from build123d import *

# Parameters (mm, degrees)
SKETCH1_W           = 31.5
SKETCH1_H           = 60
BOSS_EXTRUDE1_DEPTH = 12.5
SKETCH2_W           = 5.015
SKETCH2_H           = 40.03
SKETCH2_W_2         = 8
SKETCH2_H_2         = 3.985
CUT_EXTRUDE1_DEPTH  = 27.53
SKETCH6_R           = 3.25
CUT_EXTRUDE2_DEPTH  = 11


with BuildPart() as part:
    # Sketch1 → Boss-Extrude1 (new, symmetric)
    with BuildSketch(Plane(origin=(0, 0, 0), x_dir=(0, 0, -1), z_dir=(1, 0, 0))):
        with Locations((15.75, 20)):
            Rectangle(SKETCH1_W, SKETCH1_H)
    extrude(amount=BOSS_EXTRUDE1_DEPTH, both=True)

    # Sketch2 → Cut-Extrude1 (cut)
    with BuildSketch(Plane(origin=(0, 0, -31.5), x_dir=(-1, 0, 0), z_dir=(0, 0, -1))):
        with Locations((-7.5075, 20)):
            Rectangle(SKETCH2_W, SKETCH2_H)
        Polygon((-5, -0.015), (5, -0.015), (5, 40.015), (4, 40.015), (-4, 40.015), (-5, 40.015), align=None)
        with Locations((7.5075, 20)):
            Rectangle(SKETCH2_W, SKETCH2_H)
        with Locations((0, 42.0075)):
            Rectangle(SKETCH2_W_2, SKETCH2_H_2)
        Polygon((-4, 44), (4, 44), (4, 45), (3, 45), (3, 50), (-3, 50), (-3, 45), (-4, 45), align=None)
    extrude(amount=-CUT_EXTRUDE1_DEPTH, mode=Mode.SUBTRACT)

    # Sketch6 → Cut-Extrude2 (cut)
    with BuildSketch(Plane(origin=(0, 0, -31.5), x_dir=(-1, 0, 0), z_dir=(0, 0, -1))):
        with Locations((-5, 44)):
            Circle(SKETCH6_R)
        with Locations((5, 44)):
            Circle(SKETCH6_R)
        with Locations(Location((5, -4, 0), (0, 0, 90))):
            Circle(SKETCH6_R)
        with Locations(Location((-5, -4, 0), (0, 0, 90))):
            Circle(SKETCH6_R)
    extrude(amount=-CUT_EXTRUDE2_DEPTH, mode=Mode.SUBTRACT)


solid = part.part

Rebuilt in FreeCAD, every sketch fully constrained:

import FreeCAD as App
import Part
import Sketcher

V = App.Vector

doc = App.newDocument("Part")
params = doc.addObject("Spreadsheet::Sheet", "Params")
for row, (alias, value) in enumerate([
    ("sketch1_width", "60 mm"),
    ("sketch1_height", "31.5 mm"),
    ("pad1_length", "25 mm"),
    ("sketch2_width", "1 mm"),
    ("sketch2_width2", "6 mm"),
    ("sketch2_height", "5 mm"),
    ("sketch2_width3", "20.03 mm"),
    ("sketch2_height2", "40.03 mm"),
    ("pocket1_length", "27.53 mm"),
    ("sketch3_diameter", "6.5 mm"),
    ("pocket2_length", "11 mm"),
], start=1):
    params.set(f"A{row}", alias)
    params.set(f"B{row}", "=" + value)
    params.setAlias(f"B{row}", alias)

body = doc.addObject("PartDesign::Body", "Body")

sketch1 = body.newObject("Sketcher::SketchObject", "Sketch")
sketch1.AttachmentSupport = (doc.getObject("YZ_Plane"), [""])
sketch1.MapMode = "FlatFace"
sketch1.addGeometry([
    Part.LineSegment(V(50, 0, 0), V(-10, 0, 0)),
    Part.LineSegment(V(-10, 0, 0), V(-10, -31.5, 0)),
    Part.LineSegment(V(-10, -31.5, 0), V(50, -31.5, 0)),
    Part.LineSegment(V(50, -31.5, 0), V(50, 0, 0)),
], False)
sketch1.addConstraint([
    Sketcher.Constraint("Coincident", 0, 2, 1, 1),
    Sketcher.Constraint("Coincident", 1, 2, 2, 1),
    Sketcher.Constraint("Coincident", 2, 2, 3, 1),
    Sketcher.Constraint("Coincident", 3, 2, 0, 1),
    Sketcher.Constraint("Horizontal", 0),
    Sketcher.Constraint("Vertical", 1),
    Sketcher.Constraint("Horizontal", 2),
    Sketcher.Constraint("Vertical", 3),
    Sketcher.Constraint("PointOnObject", 0, 2, -1),
    Sketcher.Constraint("DistanceX", 0, 2, 0, 1, 60.0),
    Sketcher.Constraint("DistanceY", 1, 2, 1, 1, 31.5),
    Sketcher.Constraint("DistanceX", 0, 2, -1, 1, 10.0),
])
sketch1.setExpression("Constraints[9]", "Params.sketch1_width")
sketch1.setExpression("Constraints[10]", "Params.sketch1_height")
pad1 = body.newObject("PartDesign::Pad", "Pad")
pad1.Profile = sketch1
pad1.setExpression("Length", "Params.pad1_length")
pad1.Midplane = True

sketch2 = body.newObject("Sketcher::SketchObject", "Sketch001")
sketch2.AttachmentSupport = (doc.getObject("XY_Plane"), [""])
sketch2.MapMode = "FlatFace"
sketch2.AttachmentOffset = App.Placement(V(0, 0, -31.5), App.Rotation())
sketch2.addGeometry([
    Part.LineSegment(V(10.015, 40.015, 0), V(10.015, -0.015, 0)),
    Part.LineSegment(V(10.015, -0.015, 0), V(-10.015, -0.015, 0)),
    Part.LineSegment(V(-10.015, -0.015, 0), V(-10.015, 40.015, 0)),
    Part.LineSegment(V(-10.015, 40.015, 0), V(-4, 40.015, 0)),
    Part.LineSegment(V(-4, 40.015, 0), V(-4, 45, 0)),
    Part.LineSegment(V(-4, 45, 0), V(-3, 45, 0)),
    Part.LineSegment(V(-3, 45, 0), V(-3, 50, 0)),
    Part.LineSegment(V(-3, 50, 0), V(3, 50, 0)),
    Part.LineSegment(V(3, 50, 0), V(3, 45, 0)),
    Part.LineSegment(V(3, 45, 0), V(4, 45, 0)),
    Part.LineSegment(V(4, 45, 0), V(4, 40.015, 0)),
    Part.LineSegment(V(4, 40.015, 0), V(10.015, 40.015, 0)),
], False)
sketch2.addConstraint([
    Sketcher.Constraint("Coincident", 0, 2, 1, 1),
    Sketcher.Constraint("Coincident", 1, 2, 2, 1),
    Sketcher.Constraint("Coincident", 2, 2, 3, 1),
    Sketcher.Constraint("Coincident", 3, 2, 4, 1),
    Sketcher.Constraint("Coincident", 4, 2, 5, 1),
    Sketcher.Constraint("Coincident", 5, 2, 6, 1),
    Sketcher.Constraint("Coincident", 6, 2, 7, 1),
    Sketcher.Constraint("Coincident", 7, 2, 8, 1),
    Sketcher.Constraint("Coincident", 8, 2, 9, 1),
    Sketcher.Constraint("Coincident", 9, 2, 10, 1),
    Sketcher.Constraint("Coincident", 10, 2, 11, 1),
    Sketcher.Constraint("Coincident", 11, 2, 0, 1),
    Sketcher.Constraint("Vertical", 0),
    Sketcher.Constraint("Horizontal", 1),
    Sketcher.Constraint("Vertical", 2),
    Sketcher.Constraint("Horizontal", 3),
    Sketcher.Constraint("Vertical", 4),
    Sketcher.Constraint("Horizontal", 5),
    Sketcher.Constraint("Vertical", 6),
    Sketcher.Constraint("Horizontal", 7),
    Sketcher.Constraint("Vertical", 8),
    Sketcher.Constraint("Horizontal", 9),
    Sketcher.Constraint("Vertical", 10),
    Sketcher.Constraint("Horizontal", 11),
    Sketcher.Constraint("Symmetric", 5, 2, 8, 2, -2),
    Sketcher.Constraint("Symmetric", 3, 2, 10, 2, -2),
    Sketcher.Constraint("Equal", 3, 11),
    Sketcher.Constraint("DistanceX", 5, 1, 5, 2, 1.0),
    Sketcher.Constraint("DistanceX", 7, 1, 7, 2, 6.0),
    Sketcher.Constraint("DistanceY", 6, 1, 6, 2, 5.0),
    Sketcher.Constraint("DistanceY", -1, 1, 4, 2, 45.0),
    Sketcher.Constraint("DistanceX", 1, 2, 1, 1, 20.03),
    Sketcher.Constraint("DistanceY", 0, 2, 0, 1, 40.03),
    Sketcher.Constraint("DistanceY", 4, 1, 4, 2, 4.985),
])
sketch2.setExpression("Constraints[27]", "Params.sketch2_width")
sketch2.setExpression("Constraints[28]", "Params.sketch2_width2")
sketch2.setExpression("Constraints[29]", "Params.sketch2_height")
sketch2.setExpression("Constraints[31]", "Params.sketch2_width3")
sketch2.setExpression("Constraints[32]", "Params.sketch2_height2")
pocket1 = body.newObject("PartDesign::Pocket", "Pocket")
pocket1.Profile = sketch2
pocket1.setExpression("Length", "Params.pocket1_length")
pocket1.Reversed = True

sketch3 = body.newObject("Sketcher::SketchObject", "Sketch002")
sketch3.AttachmentSupport = (doc.getObject("XY_Plane"), [""])
sketch3.MapMode = "FlatFace"
sketch3.AttachmentOffset = App.Placement(V(0, 0, -31.5), App.Rotation())
sketch3.addGeometry([
    Part.Circle(V(5, 44, 0), V(0, 0, 1), 3.25),
    Part.Circle(V(-5, 44, 0), V(0, 0, 1), 3.25),
    Part.Circle(V(-5, -4, 0), V(0, 0, 1), 3.25),
    Part.Circle(V(5, -4, 0), V(0, 0, 1), 3.25),
], False)
sketch3.addConstraint([
    Sketcher.Constraint("Equal", 0, 1),
    Sketcher.Constraint("Equal", 1, 2),
    Sketcher.Constraint("Equal", 2, 3),
    Sketcher.Constraint("Symmetric", 0, 3, 1, 3, -2),
    Sketcher.Constraint("Symmetric", 2, 3, 3, 3, -2),
    Sketcher.Constraint("Vertical", 1, 3, 2, 3),
    Sketcher.Constraint("Diameter", 0, 6.5),
    Sketcher.Constraint("DistanceX", -1, 1, 0, 3, 5.0),
    Sketcher.Constraint("DistanceY", -1, 1, 0, 3, 44.0),
    Sketcher.Constraint("DistanceY", 2, 3, -1, 1, 4.0),
])
sketch3.setExpression("Constraints[6]", "Params.sketch3_diameter")
pocket2 = body.newObject("PartDesign::Pocket", "Pocket001")
pocket2.Profile = sketch3
pocket2.setExpression("Length", "Params.pocket2_length")
pocket2.Reversed = True

doc.recompute()
